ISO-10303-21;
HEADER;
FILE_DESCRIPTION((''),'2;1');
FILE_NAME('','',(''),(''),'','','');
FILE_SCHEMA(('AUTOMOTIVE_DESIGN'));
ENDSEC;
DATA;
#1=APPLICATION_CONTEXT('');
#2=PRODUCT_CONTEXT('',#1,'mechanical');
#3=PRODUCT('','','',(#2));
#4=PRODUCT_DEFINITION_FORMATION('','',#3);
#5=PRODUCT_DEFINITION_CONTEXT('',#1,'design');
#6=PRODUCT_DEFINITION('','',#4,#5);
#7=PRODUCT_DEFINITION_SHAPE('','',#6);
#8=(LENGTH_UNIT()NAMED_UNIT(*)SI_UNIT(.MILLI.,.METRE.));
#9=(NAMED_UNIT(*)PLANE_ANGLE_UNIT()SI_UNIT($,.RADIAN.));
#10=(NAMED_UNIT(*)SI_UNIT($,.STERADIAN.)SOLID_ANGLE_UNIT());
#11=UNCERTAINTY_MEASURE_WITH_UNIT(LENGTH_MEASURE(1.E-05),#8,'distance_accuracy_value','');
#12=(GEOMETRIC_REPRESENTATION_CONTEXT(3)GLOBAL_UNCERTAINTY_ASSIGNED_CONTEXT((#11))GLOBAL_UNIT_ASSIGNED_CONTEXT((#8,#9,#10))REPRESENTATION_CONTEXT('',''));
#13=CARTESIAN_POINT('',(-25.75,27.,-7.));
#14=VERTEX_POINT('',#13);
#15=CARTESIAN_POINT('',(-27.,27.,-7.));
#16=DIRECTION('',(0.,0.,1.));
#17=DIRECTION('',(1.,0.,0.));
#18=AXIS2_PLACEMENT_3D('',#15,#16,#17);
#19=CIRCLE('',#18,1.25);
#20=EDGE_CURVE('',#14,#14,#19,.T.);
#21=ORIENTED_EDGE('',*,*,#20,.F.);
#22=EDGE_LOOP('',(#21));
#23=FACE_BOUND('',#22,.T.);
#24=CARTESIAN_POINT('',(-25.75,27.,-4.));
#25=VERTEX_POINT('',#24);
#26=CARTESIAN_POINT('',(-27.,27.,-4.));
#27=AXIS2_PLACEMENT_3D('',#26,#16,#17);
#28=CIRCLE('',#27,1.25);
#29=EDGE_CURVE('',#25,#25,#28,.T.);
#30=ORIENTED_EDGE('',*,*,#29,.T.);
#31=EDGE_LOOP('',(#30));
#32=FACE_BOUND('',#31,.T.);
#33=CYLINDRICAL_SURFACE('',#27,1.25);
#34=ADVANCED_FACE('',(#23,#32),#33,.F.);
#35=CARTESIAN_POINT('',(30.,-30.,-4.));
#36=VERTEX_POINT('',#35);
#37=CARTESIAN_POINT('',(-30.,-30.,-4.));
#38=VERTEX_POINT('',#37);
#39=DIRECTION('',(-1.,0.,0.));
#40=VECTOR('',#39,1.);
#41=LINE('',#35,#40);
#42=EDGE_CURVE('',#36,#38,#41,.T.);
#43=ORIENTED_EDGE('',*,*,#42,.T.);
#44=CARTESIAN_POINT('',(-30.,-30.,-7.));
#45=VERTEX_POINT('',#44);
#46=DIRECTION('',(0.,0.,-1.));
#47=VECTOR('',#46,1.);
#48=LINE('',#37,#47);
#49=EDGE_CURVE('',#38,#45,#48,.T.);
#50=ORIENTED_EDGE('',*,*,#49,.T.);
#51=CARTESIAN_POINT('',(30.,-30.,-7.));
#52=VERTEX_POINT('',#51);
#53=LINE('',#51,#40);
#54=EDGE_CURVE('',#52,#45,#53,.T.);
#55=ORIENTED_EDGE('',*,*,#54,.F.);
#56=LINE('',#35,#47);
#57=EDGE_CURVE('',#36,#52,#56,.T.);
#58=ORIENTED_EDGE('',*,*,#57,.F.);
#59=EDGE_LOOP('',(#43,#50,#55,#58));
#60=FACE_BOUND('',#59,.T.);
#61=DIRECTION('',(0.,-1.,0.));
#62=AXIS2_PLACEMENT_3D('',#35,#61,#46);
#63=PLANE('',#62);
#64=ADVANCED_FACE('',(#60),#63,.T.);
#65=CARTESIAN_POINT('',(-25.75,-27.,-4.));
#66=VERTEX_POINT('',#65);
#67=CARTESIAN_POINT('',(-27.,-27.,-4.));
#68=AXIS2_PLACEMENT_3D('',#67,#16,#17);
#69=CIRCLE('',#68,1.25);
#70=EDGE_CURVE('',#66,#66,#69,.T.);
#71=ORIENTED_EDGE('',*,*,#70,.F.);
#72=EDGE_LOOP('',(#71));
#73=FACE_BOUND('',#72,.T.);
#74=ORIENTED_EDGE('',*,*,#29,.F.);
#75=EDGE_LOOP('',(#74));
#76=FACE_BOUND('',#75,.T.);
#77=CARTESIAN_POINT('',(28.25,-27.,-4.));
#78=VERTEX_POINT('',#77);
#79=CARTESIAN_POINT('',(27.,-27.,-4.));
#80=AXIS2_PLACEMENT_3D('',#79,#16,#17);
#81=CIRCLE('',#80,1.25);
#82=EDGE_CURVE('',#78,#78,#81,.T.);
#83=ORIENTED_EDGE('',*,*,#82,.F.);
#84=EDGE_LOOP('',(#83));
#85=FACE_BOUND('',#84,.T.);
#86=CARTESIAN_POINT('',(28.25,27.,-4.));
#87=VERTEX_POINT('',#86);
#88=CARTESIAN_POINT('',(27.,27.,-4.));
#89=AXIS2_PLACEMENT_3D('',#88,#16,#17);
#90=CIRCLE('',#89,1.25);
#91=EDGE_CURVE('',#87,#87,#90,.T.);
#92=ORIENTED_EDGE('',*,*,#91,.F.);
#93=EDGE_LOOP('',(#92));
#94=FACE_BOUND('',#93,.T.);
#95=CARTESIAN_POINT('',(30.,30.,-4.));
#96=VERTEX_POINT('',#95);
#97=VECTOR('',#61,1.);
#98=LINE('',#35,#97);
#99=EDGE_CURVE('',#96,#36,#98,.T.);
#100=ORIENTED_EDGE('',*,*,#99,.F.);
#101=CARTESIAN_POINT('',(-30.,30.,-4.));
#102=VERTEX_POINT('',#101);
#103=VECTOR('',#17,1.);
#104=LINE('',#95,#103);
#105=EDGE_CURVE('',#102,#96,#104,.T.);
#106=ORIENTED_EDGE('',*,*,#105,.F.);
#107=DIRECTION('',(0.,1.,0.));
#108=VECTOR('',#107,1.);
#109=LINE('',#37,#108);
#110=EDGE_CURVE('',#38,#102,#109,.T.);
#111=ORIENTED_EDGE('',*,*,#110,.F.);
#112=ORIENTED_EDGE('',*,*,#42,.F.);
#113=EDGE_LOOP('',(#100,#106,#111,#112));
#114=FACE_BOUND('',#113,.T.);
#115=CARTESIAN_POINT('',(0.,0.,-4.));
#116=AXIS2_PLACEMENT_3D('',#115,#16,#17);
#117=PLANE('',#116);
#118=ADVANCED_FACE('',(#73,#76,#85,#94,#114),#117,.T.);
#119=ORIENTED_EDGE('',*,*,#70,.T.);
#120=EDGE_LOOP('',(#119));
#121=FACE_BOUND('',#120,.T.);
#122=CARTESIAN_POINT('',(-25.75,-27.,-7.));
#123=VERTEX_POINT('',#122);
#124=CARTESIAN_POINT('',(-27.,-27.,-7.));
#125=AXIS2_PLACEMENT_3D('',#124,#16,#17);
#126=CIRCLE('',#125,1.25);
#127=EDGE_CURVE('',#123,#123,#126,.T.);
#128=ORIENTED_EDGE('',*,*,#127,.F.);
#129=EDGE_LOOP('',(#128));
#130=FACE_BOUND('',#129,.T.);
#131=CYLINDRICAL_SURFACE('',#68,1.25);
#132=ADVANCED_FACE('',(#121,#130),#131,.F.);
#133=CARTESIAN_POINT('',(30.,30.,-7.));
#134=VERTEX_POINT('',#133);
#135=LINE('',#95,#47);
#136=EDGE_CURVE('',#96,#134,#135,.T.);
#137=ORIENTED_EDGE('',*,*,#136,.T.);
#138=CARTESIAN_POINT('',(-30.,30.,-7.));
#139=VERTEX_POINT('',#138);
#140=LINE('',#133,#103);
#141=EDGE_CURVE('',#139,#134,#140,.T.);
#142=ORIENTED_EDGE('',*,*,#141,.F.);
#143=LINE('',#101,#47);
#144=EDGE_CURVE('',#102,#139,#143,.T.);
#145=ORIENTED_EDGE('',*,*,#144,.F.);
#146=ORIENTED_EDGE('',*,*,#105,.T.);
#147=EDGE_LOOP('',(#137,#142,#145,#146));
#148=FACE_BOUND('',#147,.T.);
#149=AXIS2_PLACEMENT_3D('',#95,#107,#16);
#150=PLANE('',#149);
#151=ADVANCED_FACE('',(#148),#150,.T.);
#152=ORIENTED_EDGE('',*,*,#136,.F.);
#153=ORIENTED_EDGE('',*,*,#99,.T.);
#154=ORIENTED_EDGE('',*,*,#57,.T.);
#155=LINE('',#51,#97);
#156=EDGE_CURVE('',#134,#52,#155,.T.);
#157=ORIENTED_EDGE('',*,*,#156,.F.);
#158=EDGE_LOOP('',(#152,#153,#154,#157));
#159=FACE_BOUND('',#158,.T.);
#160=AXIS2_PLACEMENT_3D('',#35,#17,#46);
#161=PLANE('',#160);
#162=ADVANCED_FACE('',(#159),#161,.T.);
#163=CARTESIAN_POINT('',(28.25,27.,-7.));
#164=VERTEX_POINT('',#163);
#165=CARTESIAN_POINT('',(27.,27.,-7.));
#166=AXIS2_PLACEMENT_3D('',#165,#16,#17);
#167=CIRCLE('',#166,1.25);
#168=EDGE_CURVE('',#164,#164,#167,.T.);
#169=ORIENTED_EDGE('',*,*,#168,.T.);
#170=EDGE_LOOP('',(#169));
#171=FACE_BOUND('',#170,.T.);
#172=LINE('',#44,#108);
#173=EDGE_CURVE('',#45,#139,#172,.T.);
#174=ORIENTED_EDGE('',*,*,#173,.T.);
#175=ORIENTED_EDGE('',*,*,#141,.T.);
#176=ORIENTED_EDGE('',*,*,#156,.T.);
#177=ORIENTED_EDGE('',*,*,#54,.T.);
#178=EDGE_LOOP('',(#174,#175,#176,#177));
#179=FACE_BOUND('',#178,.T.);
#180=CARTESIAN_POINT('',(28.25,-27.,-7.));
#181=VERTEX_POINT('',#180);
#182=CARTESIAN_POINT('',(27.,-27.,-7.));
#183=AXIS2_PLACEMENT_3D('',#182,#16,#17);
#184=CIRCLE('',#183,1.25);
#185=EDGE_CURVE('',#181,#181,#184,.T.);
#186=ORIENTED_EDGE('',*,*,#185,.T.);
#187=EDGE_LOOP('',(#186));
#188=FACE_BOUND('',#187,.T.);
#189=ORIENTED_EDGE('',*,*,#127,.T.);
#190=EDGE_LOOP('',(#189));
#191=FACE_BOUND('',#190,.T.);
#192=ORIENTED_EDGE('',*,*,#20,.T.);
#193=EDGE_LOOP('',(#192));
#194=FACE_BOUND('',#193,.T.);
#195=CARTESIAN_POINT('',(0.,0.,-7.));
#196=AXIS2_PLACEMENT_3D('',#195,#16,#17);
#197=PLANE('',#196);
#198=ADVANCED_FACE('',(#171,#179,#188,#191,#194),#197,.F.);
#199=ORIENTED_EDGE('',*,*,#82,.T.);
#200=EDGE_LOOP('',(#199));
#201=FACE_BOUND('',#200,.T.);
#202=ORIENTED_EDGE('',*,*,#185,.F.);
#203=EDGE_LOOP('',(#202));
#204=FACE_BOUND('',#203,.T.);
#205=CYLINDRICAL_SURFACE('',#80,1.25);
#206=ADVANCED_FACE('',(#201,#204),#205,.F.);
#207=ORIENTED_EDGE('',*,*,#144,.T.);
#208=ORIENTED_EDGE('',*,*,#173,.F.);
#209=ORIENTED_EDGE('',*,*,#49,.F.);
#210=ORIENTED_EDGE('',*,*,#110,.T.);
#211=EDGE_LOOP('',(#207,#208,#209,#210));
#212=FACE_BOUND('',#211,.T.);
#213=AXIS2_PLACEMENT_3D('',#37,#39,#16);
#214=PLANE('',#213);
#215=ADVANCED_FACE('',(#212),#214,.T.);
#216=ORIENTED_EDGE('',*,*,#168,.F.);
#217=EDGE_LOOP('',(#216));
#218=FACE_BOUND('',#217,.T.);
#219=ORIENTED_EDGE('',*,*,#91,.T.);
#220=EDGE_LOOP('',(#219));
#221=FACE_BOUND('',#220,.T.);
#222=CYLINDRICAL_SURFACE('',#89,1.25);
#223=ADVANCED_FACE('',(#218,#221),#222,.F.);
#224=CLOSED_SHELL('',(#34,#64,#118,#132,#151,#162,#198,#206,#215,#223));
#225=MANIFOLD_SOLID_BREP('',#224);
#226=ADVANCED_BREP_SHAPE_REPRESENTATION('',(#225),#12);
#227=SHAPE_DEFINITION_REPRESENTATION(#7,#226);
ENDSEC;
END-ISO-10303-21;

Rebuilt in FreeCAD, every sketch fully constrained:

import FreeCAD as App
import Part
import Sketcher


def add_polygon(sketch, points):
    """Adds a closed chain of lines whose ends are joined by coincident constraints."""
    first, n = sketch.GeometryCount, len(points)
    for a, b in zip(points, points[1:] + points[:1]):
        sketch.addGeometry(Part.LineSegment(App.Vector(*a, 0), App.Vector(*b, 0)), False)
    for i in range(n):
        sketch.addConstraint(Sketcher.Constraint("Coincident", first + i, 2, first + (i + 1) % n, 1))

doc = App.newDocument("Part")
body = doc.addObject("PartDesign::Body", "Body")

# Sketch on XY plane
sketch1 = body.newObject("Sketcher::SketchObject", "Sketch")
sketch1.AttachmentSupport = (doc.getObject("XY_Plane"), [""])
sketch1.MapMode = "FlatFace"
sketch1.AttachmentOffset = App.Placement(App.Vector(0, 0, -7), App.Rotation())
add_polygon(sketch1, [(30, 30), (30, -30), (-30, -30), (-30, 30)])  # lines 0-3
sketch1.addConstraint(Sketcher.Constraint("Vertical", 0))
sketch1.addConstraint(Sketcher.Constraint("Horizontal", 1))
sketch1.addConstraint(Sketcher.Constraint("Vertical", 2))
sketch1.addConstraint(Sketcher.Constraint("Horizontal", 3))
sketch1.addConstraint(Sketcher.Constraint("Symmetric", 0, 2, 2, 2, -1, 1))
sketch1.addConstraint(Sketcher.Constraint("Equal", 3, 0))
sketch1.addConstraint(Sketcher.Constraint("DistanceX", 1, 2, 1, 1, 60.0))
pad1 = body.newObject("PartDesign::Pad", "Pad")
pad1.Profile = sketch1
pad1.Length = 3

# Sketch on XY plane
sketch2 = body.newObject("Sketcher::SketchObject", "Sketch001")
sketch2.AttachmentSupport = (doc.getObject("XY_Plane"), [""])
sketch2.MapMode = "FlatFace"
sketch2.AttachmentOffset = App.Placement(App.Vector(0, 0, -4), App.Rotation())
sketch2.addGeometry(Part.Circle(App.Vector(-27, 27, 0), App.Vector(0, 0, 1), 1.25), False)
sketch2.addGeometry(Part.Circle(App.Vector(-27, -27, 0), App.Vector(0, 0, 1), 1.25), False)
sketch2.addGeometry(Part.Circle(App.Vector(27, -27, 0), App.Vector(0, 0, 1), 1.25), False)
sketch2.addGeometry(Part.Circle(App.Vector(27, 27, 0), App.Vector(0, 0, 1), 1.25), False)
sketch2.addConstraint(Sketcher.Constraint("Equal", 0, 1))
sketch2.addConstraint(Sketcher.Constraint("Equal", 1, 2))
sketch2.addConstraint(Sketcher.Constraint("Equal", 2, 3))
sketch2.addConstraint(Sketcher.Constraint("Symmetric", 0, 3, 2, 3, -1, 1))
sketch2.addConstraint(Sketcher.Constraint("Symmetric", 1, 3, 3, 3, -1, 1))
sketch2.addConstraint(Sketcher.Constraint("Symmetric", 1, 3, 2, 3, -2))
sketch2.addConstraint(Sketcher.Constraint("Diameter", 0, 2.5))
sketch2.addConstraint(Sketcher.Constraint("DistanceX", 0, 3, -1, 1, 27.0))
sketch2.addConstraint(Sketcher.Constraint("DistanceY", -1, 1, 0, 3, 27.0))
doc.recompute()
hole = body.newObject("PartDesign::Hole", "Hole")
hole.Profile = sketch2
hole.ThreadType = "None"
hole.Diameter = 2.5
hole.DepthType = "ThroughAll"

doc.recompute()
